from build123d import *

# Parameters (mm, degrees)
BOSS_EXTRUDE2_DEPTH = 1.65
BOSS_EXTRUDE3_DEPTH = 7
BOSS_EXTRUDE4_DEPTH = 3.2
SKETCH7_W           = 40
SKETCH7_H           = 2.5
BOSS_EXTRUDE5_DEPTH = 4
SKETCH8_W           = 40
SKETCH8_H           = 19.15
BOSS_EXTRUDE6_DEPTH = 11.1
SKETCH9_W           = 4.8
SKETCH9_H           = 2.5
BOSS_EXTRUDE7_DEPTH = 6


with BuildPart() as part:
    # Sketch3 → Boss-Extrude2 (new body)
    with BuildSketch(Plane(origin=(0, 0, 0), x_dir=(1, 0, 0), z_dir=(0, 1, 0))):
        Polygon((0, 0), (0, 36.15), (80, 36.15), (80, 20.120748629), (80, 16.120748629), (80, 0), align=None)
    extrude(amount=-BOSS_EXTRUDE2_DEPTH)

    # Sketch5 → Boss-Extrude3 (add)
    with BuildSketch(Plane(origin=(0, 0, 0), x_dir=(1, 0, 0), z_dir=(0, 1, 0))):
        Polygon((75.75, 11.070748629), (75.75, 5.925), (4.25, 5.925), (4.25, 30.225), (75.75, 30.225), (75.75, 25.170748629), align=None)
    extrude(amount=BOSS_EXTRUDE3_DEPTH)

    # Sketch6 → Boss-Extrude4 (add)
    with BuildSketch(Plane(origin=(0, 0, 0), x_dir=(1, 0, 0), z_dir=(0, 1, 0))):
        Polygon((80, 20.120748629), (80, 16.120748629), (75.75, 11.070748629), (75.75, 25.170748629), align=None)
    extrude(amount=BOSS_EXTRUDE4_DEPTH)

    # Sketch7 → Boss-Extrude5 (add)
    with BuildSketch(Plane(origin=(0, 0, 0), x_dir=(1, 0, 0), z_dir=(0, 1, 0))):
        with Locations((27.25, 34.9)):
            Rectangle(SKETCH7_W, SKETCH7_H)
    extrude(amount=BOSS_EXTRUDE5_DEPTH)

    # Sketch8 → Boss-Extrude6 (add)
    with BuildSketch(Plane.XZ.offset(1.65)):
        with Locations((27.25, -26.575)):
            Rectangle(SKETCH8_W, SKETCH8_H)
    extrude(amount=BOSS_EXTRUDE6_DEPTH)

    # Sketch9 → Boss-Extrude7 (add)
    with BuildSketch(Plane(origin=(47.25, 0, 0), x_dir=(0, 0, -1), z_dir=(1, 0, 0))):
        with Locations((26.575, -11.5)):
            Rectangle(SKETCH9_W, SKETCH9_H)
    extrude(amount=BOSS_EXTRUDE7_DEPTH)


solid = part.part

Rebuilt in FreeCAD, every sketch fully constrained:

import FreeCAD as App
import Part
import Sketcher

V = App.Vector


def add_polygon(sketch, points):
    """Adds a closed chain of lines whose ends are joined by coincident constraints."""
    first, n = sketch.GeometryCount, len(points)
    for a, b in zip(points, points[1:] + points[:1]):
        sketch.addGeometry(Part.LineSegment(App.Vector(*a, 0), App.Vector(*b, 0)), False)
    for i in range(n):
        sketch.addConstraint(Sketcher.Constraint("Coincident", first + i, 2, first + (i + 1) % n, 1))

doc = App.newDocument("Part")
body = doc.addObject("PartDesign::Body", "Body")

# Sketch on XZ plane
sketch1 = body.newObject("Sketcher::SketchObject", "Sketch")
sketch1.AttachmentSupport = (doc.getObject("XZ_Plane"), [""])
sketch1.MapMode = "FlatFace"
add_polygon(sketch1, [(0, -36), (0, 0), (80, 0), (80, -36)])  # lines 0-3
sketch1.addConstraint([
    Sketcher.Constraint("Vertical", 0),
    Sketcher.Constraint("Horizontal", 1),
    Sketcher.Constraint("Vertical", 2),
    Sketcher.Constraint("Horizontal", 3),
    Sketcher.Constraint("Coincident", 0, 2, -1, 1),
    Sketcher.Constraint("DistanceX", 1, 1, 1, 2, 80.0),
    Sketcher.Constraint("DistanceY", 0, 1, 0, 2, 36.15),
])
pad1 = body.newObject("PartDesign::Pad", "Pad")
pad1.Profile = sketch1
pad1.Length = 1.65

# Sketch on XZ plane
sketch2 = body.newObject("Sketcher::SketchObject", "Sketch001")
sketch2.AttachmentSupport = (doc.getObject("XZ_Plane"), [""])
sketch2.MapMode = "FlatFace"
add_polygon(sketch2, [(76, -6), (76, -30), (4, -30), (4, -6)])  # lines 0-3
sketch2.addConstraint([
    Sketcher.Constraint("Vertical", 0),
    Sketcher.Constraint("Horizontal", 1),
    Sketcher.Constraint("Vertical", 2),
    Sketcher.Constraint("Horizontal", 3),
    Sketcher.Constraint("DistanceX", 1, 2, 1, 1, 71.5),
    Sketcher.Constraint("DistanceY", 0, 2, 0, 1, 24.3),
    Sketcher.Constraint("DistanceX", -1, 1, 0, 2, 75.75),
    Sketcher.Constraint("DistanceY", 0, 2, -1, 1, 30.225),
])
pad2 = body.newObject("PartDesign::Pad", "Pad001")
pad2.Profile = sketch2
pad2.Length = 7
pad2.Reversed = True

# Sketch on XZ plane
sketch3 = body.newObject("Sketcher::SketchObject", "Sketch002")
sketch3.AttachmentSupport = (doc.getObject("XZ_Plane"), [""])
sketch3.MapMode = "FlatFace"
add_polygon(sketch3, [(80, -16.1), (80, -20.1), (75.8, -25.2), (75.8, -11.1)])  # lines 0-3
sketch3.addConstraint([
    Sketcher.Constraint("Vertical", 0),
    Sketcher.Constraint("Vertical", 2),
    Sketcher.Constraint("Equal", 1, 3),
    Sketcher.Constraint("DistanceY", 0, 2, 0, 1, 4.0),
    Sketcher.Constraint("DistanceY", 2, 1, 2, 2, 14.1),
    Sketcher.Constraint("DistanceX", -1, 1, 0, 2, 80.0),
    Sketcher.Constraint("DistanceX", -1, 1, 1, 2, 75.75),
    Sketcher.Constraint("DistanceY", 0, 2, -1, 1, 20.120749),
])
pad3 = body.newObject("PartDesign::Pad", "Pad002")
pad3.Profile = sketch3
pad3.Length = 3.2
pad3.Reversed = True

# Sketch on XZ plane
sketch4 = body.newObject("Sketcher::SketchObject", "Sketch003")
sketch4.AttachmentSupport = (doc.getObject("XZ_Plane"), [""])
sketch4.MapMode = "FlatFace"
add_polygon(sketch4, [(7.2, -36.1), (7.2, -33.6), (47.2, -33.6), (47.2, -36.1)])  # lines 0-3
sketch4.addConstraint([
    Sketcher.Constraint("Vertical", 0),
    Sketcher.Constraint("Horizontal", 1),
    Sketcher.Constraint("Vertical", 2),
    Sketcher.Constraint("Horizontal", 3),
    Sketcher.Constraint("DistanceX", 1, 1, 1, 2, 40.0),
    Sketcher.Constraint("DistanceY", 0, 1, 0, 2, 2.5),
    Sketcher.Constraint("DistanceX", -1, 1, 0, 2, 7.25),
    Sketcher.Constraint("DistanceY", 0, 2, -1, 1, 33.65),
])
pad4 = body.newObject("PartDesign::Pad", "Pad003")
pad4.Profile = sketch4
pad4.Length = 4
pad4.Reversed = True

# Sketch on XZ plane
sketch5 = body.newObject("Sketcher::SketchObject", "Sketch004")
sketch5.AttachmentSupport = (doc.getObject("XZ_Plane"), [""])
sketch5.MapMode = "FlatFace"
sketch5.AttachmentOffset = App.Placement(V(0, 0, 1.65), App.Rotation())
add_polygon(sketch5, [(7, -17), (7, -36), (47, -36), (47, -17)])  # lines 0-3
sketch5.addConstraint([
    Sketcher.Constraint("Vertical", 0),
    Sketcher.Constraint("Horizontal", 1),
    Sketcher.Constraint("Vertical", 2),
    Sketcher.Constraint("Horizontal", 3),
    Sketcher.Constraint("DistanceX", 1, 1, 1, 2, 40.0),
    Sketcher.Constraint("DistanceY", 2, 2, -1, 1, 17.0),
    Sketcher.Constraint("DistanceY", 0, 2, 0, 1, 19.15),
    Sketcher.Constraint("DistanceX", -1, 1, 0, 2, 7.25),
])
pad5 = body.newObject("PartDesign::Pad", "Pad004")
pad5.Profile = sketch5
pad5.Length = 11.1

# Sketch on YZ plane
sketch6 = body.newObject("Sketcher::SketchObject", "Sketch005")
sketch6.AttachmentSupport = (doc.getObject("YZ_Plane"), [""])
sketch6.MapMode = "FlatFace"
sketch6.AttachmentOffset = App.Placement(V(0, 0, 47.25), App.Rotation())
add_polygon(sketch6, [(-10.2, -24.2), (-12.8, -24.2), (-12.8, -29), (-10.2, -29)])  # lines 0-3
sketch6.addConstraint([
    Sketcher.Constraint("Horizontal", 0),
    Sketcher.Constraint("Vertical", 1),
    Sketcher.Constraint("Horizontal", 2),
    Sketcher.Constraint("Vertical", 3),
    Sketcher.Constraint("DistanceX", 0, 2, 0, 1, 2.5),
    Sketcher.Constraint("DistanceY", 1, 2, 1, 1, 4.8),
    Sketcher.Constraint("DistanceX", 0, 2, -1, 1, 12.75),
    Sketcher.Constraint("DistanceY", 0, 2, -1, 1, 24.175),
])
pad6 = body.newObject("PartDesign::Pad", "Pad005")
pad6.Profile = sketch6
pad6.Length = 6

doc.recompute()
